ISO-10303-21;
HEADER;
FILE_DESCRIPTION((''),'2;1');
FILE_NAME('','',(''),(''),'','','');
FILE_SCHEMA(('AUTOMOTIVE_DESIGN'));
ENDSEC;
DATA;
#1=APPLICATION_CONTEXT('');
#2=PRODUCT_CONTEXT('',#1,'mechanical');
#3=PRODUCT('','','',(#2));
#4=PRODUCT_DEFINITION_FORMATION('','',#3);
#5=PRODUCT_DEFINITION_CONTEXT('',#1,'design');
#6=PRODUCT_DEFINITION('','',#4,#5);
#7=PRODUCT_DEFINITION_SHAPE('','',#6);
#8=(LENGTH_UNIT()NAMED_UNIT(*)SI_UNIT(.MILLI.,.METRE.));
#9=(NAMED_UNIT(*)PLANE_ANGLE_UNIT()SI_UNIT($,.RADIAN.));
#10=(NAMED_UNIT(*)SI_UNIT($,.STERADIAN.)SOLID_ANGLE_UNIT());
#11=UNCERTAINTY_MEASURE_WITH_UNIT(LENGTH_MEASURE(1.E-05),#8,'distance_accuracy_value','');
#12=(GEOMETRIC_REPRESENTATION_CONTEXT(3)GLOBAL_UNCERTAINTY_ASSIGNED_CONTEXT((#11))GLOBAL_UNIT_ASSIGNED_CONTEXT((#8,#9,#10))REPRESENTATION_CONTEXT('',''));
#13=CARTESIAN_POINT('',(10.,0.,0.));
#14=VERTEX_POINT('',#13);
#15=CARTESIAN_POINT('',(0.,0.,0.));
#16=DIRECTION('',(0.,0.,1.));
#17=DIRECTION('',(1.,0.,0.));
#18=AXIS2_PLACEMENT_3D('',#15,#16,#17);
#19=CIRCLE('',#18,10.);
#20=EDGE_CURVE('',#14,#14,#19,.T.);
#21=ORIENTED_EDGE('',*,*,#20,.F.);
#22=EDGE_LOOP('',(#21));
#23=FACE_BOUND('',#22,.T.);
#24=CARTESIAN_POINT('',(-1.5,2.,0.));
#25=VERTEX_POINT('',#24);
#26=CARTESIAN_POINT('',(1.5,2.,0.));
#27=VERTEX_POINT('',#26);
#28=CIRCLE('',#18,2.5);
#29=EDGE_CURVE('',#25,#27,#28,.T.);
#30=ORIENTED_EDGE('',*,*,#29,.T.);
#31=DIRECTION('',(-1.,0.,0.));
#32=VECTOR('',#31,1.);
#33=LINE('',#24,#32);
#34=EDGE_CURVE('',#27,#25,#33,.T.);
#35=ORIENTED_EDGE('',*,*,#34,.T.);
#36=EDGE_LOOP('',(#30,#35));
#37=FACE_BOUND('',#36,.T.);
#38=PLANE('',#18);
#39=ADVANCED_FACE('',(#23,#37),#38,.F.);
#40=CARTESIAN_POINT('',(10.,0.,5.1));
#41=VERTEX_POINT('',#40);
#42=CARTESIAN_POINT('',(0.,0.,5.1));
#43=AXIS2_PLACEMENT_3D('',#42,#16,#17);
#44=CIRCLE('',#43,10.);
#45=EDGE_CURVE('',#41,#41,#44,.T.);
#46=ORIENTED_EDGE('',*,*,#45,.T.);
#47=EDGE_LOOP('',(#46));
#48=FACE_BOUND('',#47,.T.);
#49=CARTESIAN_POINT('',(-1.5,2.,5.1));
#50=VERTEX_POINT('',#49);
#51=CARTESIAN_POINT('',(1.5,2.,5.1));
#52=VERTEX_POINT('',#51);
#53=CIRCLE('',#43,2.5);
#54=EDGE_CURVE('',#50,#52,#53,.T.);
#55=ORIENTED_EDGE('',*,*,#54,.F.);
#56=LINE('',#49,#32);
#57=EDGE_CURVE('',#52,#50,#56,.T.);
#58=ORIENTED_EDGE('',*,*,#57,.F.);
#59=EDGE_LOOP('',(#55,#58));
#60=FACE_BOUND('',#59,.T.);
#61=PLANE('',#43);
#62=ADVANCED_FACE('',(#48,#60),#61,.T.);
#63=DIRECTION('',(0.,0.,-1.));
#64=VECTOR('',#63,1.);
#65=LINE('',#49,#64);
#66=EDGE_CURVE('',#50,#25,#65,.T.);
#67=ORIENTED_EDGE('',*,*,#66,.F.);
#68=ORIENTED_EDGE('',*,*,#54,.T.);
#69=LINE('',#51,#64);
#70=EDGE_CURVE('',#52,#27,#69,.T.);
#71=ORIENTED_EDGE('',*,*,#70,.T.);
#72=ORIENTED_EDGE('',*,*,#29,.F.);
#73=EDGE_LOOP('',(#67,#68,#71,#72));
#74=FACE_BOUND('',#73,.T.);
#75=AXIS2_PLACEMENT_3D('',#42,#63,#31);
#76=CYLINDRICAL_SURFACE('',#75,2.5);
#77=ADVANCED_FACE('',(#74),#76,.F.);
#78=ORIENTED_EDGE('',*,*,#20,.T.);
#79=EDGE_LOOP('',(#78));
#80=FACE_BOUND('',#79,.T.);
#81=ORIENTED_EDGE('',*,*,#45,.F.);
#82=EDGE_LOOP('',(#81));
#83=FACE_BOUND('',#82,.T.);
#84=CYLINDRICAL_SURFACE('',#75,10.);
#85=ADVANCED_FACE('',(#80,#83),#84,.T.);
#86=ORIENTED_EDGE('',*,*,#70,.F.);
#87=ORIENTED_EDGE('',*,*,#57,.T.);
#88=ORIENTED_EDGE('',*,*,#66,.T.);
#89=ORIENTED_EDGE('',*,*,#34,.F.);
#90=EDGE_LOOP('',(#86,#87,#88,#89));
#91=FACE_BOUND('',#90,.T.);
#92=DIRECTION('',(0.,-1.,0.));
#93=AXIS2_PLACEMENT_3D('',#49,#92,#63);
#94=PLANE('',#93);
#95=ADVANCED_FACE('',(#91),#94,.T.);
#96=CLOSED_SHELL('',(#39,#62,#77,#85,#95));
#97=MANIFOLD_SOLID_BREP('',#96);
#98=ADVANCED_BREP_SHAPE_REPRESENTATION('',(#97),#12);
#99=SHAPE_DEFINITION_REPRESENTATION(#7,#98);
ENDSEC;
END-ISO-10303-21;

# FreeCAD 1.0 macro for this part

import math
import FreeCAD as App
import Part
import Sketcher
from FreeCAD import Vector

doc = App.newDocument("Part")
body = doc.addObject("PartDesign::Body", "Body")

# Sketch on XY plane
sketch1 = body.newObject("Sketcher::SketchObject", "Sketch")
sketch1.AttachmentSupport = (doc.getObject("XY_Plane"), [""])
sketch1.MapMode = "FlatFace"
sketch1.addGeometry(Part.Circle(Vector(0, 0, 0), Vector(0, 0, 1), 10), False)
sketch1.addGeometry(Part.ArcOfCircle(Part.Circle(Vector(0, 0, 0), Vector(0, 0, 1), 2.5), math.radians(127), math.radians(413)), False)
sketch1.addGeometry(Part.LineSegment(Vector(-1.5, 2, 0), Vector(1.5, 2, 0)), False)
sketch1.addConstraint(Sketcher.Constraint("Coincident", 1, 1, 2, 1))
sketch1.addConstraint(Sketcher.Constraint("Coincident", 2, 2, 1, 2))
sketch1.addConstraint(Sketcher.Constraint("Horizontal", 2))
sketch1.addConstraint(Sketcher.Constraint("Coincident", 0, 3, -1, 1))
sketch1.addConstraint(Sketcher.Constraint("Coincident", 1, 3, -1, 1))
sketch1.addConstraint(Sketcher.Constraint("Diameter", 0, 20.0))
sketch1.addConstraint(Sketcher.Constraint("Radius", 1, 2.5))
sketch1.addConstraint(Sketcher.Constraint("DistanceX", 2, 1, 2, 2, 3.0))
pad1 = body.newObject("PartDesign::Pad", "Pad")
pad1.Profile = sketch1
pad1.Length = 5.1

doc.recompute()
